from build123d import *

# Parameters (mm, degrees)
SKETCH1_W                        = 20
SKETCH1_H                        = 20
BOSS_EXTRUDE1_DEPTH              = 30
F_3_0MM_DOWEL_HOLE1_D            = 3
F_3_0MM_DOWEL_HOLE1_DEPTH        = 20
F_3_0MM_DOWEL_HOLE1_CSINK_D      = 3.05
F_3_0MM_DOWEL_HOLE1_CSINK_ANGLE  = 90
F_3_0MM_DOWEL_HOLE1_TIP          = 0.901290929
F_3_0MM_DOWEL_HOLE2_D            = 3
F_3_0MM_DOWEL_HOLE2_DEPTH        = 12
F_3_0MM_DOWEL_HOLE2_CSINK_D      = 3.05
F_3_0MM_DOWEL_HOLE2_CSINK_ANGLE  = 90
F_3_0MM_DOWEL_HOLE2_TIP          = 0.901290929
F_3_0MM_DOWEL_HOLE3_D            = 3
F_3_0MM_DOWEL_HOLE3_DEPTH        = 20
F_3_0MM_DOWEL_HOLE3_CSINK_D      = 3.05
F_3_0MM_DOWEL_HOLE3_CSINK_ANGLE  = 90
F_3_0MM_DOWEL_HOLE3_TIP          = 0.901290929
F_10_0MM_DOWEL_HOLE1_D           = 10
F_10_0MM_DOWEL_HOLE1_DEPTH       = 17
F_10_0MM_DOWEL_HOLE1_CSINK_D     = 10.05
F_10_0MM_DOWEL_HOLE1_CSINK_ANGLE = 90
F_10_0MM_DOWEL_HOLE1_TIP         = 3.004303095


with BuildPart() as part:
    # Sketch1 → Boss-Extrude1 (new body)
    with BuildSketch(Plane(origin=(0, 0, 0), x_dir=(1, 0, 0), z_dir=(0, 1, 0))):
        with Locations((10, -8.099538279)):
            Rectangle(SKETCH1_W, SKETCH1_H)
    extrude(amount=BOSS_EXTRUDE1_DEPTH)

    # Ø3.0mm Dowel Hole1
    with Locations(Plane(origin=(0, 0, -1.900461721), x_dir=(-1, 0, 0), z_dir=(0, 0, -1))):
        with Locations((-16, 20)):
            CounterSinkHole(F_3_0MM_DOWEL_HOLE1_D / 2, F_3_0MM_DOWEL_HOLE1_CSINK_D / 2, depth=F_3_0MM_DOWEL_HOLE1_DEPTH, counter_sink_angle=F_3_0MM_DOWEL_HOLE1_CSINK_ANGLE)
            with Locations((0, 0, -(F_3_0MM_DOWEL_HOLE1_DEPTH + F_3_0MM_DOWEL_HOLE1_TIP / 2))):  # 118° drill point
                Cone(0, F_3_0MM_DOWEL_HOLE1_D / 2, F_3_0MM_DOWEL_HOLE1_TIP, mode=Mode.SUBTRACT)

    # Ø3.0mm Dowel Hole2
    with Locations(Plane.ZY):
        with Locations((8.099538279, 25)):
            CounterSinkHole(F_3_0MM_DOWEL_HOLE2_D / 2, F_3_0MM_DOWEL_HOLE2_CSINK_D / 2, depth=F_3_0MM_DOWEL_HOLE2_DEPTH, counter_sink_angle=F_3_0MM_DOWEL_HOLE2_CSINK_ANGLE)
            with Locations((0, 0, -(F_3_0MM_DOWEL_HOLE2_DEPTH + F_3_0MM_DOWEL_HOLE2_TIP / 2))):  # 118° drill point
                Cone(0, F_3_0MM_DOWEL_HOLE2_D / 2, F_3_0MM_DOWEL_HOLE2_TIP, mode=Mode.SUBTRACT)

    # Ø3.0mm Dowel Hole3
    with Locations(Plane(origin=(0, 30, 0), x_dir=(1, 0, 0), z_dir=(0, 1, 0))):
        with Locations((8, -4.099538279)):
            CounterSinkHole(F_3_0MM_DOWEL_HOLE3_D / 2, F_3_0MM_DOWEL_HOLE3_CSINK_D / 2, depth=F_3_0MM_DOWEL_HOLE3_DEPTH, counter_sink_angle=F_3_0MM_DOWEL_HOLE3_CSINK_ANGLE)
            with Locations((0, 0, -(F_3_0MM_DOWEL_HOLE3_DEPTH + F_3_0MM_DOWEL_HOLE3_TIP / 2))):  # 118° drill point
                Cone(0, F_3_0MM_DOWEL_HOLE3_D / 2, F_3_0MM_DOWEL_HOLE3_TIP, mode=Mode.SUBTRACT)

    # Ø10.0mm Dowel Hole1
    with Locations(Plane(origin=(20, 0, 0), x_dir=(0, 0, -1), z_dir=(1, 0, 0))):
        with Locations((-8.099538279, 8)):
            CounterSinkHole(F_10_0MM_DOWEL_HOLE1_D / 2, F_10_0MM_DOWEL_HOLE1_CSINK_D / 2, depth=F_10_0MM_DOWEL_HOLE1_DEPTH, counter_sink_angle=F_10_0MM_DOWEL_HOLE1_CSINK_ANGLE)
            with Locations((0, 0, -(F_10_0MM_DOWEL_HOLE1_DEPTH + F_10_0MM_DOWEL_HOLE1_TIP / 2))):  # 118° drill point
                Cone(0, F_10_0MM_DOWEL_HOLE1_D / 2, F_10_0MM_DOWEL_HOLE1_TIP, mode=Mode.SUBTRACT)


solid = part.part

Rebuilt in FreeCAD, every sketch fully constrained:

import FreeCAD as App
import Part
import Sketcher
from FreeCAD import Vector

doc = App.newDocument("Part")
body = doc.addObject("PartDesign::Body", "Body")

# Sketch on XZ plane
sketch1 = body.newObject("Sketcher::SketchObject", "Sketch")
sketch1.AttachmentSupport = (doc.getObject("XZ_Plane"), [""])
sketch1.MapMode = "FlatFace"
sketch1.addGeometry(Part.LineSegment(Vector(0, -2, 0), Vector(0, 18, 0)), False)
sketch1.addGeometry(Part.LineSegment(Vector(0, 18, 0), Vector(20, 18, 0)), False)
sketch1.addGeometry(Part.LineSegment(Vector(20, 18, 0), Vector(20, -2, 0)), False)
sketch1.addGeometry(Part.LineSegment(Vector(20, -2, 0), Vector(0, -2, 0)), False)
sketch1.addConstraint(Sketcher.Constraint("Coincident", 0, 2, 1, 1))
sketch1.addConstraint(Sketcher.Constraint("Coincident", 1, 2, 2, 1))
sketch1.addConstraint(Sketcher.Constraint("Coincident", 2, 2, 3, 1))
sketch1.addConstraint(Sketcher.Constraint("Coincident", 3, 2, 0, 1))
sketch1.addConstraint(Sketcher.Constraint("Vertical", 0))
sketch1.addConstraint(Sketcher.Constraint("Horizontal", 1))
sketch1.addConstraint(Sketcher.Constraint("Vertical", 2))
sketch1.addConstraint(Sketcher.Constraint("Horizontal", 3))
sketch1.addConstraint(Sketcher.Constraint("PointOnObject", 0, 2, -2))
sketch1.addConstraint(Sketcher.Constraint("Equal", 3, 0))
sketch1.addConstraint(Sketcher.Constraint("DistanceX", 1, 1, 1, 2, 20.0))
sketch1.addConstraint(Sketcher.Constraint("DistanceY", -1, 1, 0, 2, 18.099538))
pad1 = body.newObject("PartDesign::Pad", "Pad")
pad1.Profile = sketch1
pad1.Length = 30
pad1.Reversed = True

# Sketch on XY plane
sketch2 = body.newObject("Sketcher::SketchObject", "Sketch001")
sketch2.AttachmentSupport = (doc.getObject("XY_Plane"), [""])
sketch2.MapMode = "FlatFace"
sketch2.AttachmentOffset = App.Placement(Vector(0, 0, -1.900462), App.Rotation())
sketch2.addGeometry(Part.Circle(Vector(16, 20, 0), Vector(0, 0, 1), 1.5), False)
sketch2.addConstraint(Sketcher.Constraint("Diameter", 0, 3.0))
sketch2.addConstraint(Sketcher.Constraint("DistanceX", -1, 1, 0, 3, 16.0))
sketch2.addConstraint(Sketcher.Constraint("DistanceY", -1, 1, 0, 3, 20.0))
doc.recompute()
hole = body.newObject("PartDesign::Hole", "Hole")
hole.Profile = sketch2
hole.ThreadType = "None"
hole.Diameter = 3
hole.DepthType = "Dimension"
hole.Depth = 20
hole.DrillPoint = "Angled"
hole.DrillPointAngle = 118
hole.HoleCutType = "Countersink"
hole.HoleCutDiameter = 3.05
hole.HoleCutCountersinkAngle = 90
hole.Reversed = True

# Sketch on YZ plane
sketch3 = body.newObject("Sketcher::SketchObject", "Sketch002")
sketch3.AttachmentSupport = (doc.getObject("YZ_Plane"), [""])
sketch3.MapMode = "FlatFace"
sketch3.addGeometry(Part.Circle(Vector(25, 8.1, 0), Vector(0, 0, 1), 1.5), False)
sketch3.addConstraint(Sketcher.Constraint("Diameter", 0, 3.0))
sketch3.addConstraint(Sketcher.Constraint("DistanceX", -1, 1, 0, 3, 25.0))
sketch3.addConstraint(Sketcher.Constraint("DistanceY", -1, 1, 0, 3, 8.099538))
doc.recompute()
hole2 = body.newObject("PartDesign::Hole", "Hole001")
hole2.Profile = sketch3
hole2.ThreadType = "None"
hole2.Diameter = 3
hole2.DepthType = "Dimension"
hole2.Depth = 12
hole2.DrillPoint = "Angled"
hole2.DrillPointAngle = 118
hole2.HoleCutType = "Countersink"
hole2.HoleCutDiameter = 3.05
hole2.HoleCutCountersinkAngle = 90
hole2.Reversed = True

# Sketch on XZ plane
sketch4 = body.newObject("Sketcher::SketchObject", "Sketch003")
sketch4.AttachmentSupport = (doc.getObject("XZ_Plane"), [""])
sketch4.MapMode = "FlatFace"
sketch4.AttachmentOffset = App.Placement(Vector(0, 0, -30), App.Rotation())
sketch4.addGeometry(Part.Circle(Vector(8, 4.1, 0), Vector(0, 0, 1), 1.5), False)
sketch4.addConstraint(Sketcher.Constraint("Diameter", 0, 3.0))
sketch4.addConstraint(Sketcher.Constraint("DistanceX", -1, 1, 0, 3, 8.0))
sketch4.addConstraint(Sketcher.Constraint("DistanceY", -1, 1, 0, 3, 4.099538))
doc.recompute()
hole3 = body.newObject("PartDesign::Hole", "Hole002")
hole3.Profile = sketch4
hole3.ThreadType = "None"
hole3.Diameter = 3
hole3.DepthType = "Dimension"
hole3.Depth = 20
hole3.DrillPoint = "Angled"
hole3.DrillPointAngle = 118
hole3.HoleCutType = "Countersink"
hole3.HoleCutDiameter = 3.05
hole3.HoleCutCountersinkAngle = 90
hole3.Reversed = True

# Sketch on YZ plane
sketch5 = body.newObject("Sketcher::SketchObject", "Sketch004")
sketch5.AttachmentSupport = (doc.getObject("YZ_Plane"), [""])
sketch5.MapMode = "FlatFace"
sketch5.AttachmentOffset = App.Placement(Vector(0, 0, 20), App.Rotation())
sketch5.addGeometry(Part.Circle(Vector(8, 8, 0), Vector(0, 0, 1), 5), False)
sketch5.addConstraint(Sketcher.Constraint("Diameter", 0, 10.0))
sketch5.addConstraint(Sketcher.Constraint("DistanceX", -1, 1, 0, 3, 8.0))
sketch5.addConstraint(Sketcher.Constraint("DistanceY", -1, 1, 0, 3, 8.099538))
doc.recompute()
hole4 = body.newObject("PartDesign::Hole", "Hole003")
hole4.Profile = sketch5
hole4.ThreadType = "None"
hole4.Diameter = 10
hole4.DepthType = "Dimension"
hole4.Depth = 17
hole4.DrillPoint = "Angled"
hole4.DrillPointAngle = 118
hole4.HoleCutType = "Countersink"
hole4.HoleCutDiameter = 10.05
hole4.HoleCutCountersinkAngle = 90

doc.recompute()
